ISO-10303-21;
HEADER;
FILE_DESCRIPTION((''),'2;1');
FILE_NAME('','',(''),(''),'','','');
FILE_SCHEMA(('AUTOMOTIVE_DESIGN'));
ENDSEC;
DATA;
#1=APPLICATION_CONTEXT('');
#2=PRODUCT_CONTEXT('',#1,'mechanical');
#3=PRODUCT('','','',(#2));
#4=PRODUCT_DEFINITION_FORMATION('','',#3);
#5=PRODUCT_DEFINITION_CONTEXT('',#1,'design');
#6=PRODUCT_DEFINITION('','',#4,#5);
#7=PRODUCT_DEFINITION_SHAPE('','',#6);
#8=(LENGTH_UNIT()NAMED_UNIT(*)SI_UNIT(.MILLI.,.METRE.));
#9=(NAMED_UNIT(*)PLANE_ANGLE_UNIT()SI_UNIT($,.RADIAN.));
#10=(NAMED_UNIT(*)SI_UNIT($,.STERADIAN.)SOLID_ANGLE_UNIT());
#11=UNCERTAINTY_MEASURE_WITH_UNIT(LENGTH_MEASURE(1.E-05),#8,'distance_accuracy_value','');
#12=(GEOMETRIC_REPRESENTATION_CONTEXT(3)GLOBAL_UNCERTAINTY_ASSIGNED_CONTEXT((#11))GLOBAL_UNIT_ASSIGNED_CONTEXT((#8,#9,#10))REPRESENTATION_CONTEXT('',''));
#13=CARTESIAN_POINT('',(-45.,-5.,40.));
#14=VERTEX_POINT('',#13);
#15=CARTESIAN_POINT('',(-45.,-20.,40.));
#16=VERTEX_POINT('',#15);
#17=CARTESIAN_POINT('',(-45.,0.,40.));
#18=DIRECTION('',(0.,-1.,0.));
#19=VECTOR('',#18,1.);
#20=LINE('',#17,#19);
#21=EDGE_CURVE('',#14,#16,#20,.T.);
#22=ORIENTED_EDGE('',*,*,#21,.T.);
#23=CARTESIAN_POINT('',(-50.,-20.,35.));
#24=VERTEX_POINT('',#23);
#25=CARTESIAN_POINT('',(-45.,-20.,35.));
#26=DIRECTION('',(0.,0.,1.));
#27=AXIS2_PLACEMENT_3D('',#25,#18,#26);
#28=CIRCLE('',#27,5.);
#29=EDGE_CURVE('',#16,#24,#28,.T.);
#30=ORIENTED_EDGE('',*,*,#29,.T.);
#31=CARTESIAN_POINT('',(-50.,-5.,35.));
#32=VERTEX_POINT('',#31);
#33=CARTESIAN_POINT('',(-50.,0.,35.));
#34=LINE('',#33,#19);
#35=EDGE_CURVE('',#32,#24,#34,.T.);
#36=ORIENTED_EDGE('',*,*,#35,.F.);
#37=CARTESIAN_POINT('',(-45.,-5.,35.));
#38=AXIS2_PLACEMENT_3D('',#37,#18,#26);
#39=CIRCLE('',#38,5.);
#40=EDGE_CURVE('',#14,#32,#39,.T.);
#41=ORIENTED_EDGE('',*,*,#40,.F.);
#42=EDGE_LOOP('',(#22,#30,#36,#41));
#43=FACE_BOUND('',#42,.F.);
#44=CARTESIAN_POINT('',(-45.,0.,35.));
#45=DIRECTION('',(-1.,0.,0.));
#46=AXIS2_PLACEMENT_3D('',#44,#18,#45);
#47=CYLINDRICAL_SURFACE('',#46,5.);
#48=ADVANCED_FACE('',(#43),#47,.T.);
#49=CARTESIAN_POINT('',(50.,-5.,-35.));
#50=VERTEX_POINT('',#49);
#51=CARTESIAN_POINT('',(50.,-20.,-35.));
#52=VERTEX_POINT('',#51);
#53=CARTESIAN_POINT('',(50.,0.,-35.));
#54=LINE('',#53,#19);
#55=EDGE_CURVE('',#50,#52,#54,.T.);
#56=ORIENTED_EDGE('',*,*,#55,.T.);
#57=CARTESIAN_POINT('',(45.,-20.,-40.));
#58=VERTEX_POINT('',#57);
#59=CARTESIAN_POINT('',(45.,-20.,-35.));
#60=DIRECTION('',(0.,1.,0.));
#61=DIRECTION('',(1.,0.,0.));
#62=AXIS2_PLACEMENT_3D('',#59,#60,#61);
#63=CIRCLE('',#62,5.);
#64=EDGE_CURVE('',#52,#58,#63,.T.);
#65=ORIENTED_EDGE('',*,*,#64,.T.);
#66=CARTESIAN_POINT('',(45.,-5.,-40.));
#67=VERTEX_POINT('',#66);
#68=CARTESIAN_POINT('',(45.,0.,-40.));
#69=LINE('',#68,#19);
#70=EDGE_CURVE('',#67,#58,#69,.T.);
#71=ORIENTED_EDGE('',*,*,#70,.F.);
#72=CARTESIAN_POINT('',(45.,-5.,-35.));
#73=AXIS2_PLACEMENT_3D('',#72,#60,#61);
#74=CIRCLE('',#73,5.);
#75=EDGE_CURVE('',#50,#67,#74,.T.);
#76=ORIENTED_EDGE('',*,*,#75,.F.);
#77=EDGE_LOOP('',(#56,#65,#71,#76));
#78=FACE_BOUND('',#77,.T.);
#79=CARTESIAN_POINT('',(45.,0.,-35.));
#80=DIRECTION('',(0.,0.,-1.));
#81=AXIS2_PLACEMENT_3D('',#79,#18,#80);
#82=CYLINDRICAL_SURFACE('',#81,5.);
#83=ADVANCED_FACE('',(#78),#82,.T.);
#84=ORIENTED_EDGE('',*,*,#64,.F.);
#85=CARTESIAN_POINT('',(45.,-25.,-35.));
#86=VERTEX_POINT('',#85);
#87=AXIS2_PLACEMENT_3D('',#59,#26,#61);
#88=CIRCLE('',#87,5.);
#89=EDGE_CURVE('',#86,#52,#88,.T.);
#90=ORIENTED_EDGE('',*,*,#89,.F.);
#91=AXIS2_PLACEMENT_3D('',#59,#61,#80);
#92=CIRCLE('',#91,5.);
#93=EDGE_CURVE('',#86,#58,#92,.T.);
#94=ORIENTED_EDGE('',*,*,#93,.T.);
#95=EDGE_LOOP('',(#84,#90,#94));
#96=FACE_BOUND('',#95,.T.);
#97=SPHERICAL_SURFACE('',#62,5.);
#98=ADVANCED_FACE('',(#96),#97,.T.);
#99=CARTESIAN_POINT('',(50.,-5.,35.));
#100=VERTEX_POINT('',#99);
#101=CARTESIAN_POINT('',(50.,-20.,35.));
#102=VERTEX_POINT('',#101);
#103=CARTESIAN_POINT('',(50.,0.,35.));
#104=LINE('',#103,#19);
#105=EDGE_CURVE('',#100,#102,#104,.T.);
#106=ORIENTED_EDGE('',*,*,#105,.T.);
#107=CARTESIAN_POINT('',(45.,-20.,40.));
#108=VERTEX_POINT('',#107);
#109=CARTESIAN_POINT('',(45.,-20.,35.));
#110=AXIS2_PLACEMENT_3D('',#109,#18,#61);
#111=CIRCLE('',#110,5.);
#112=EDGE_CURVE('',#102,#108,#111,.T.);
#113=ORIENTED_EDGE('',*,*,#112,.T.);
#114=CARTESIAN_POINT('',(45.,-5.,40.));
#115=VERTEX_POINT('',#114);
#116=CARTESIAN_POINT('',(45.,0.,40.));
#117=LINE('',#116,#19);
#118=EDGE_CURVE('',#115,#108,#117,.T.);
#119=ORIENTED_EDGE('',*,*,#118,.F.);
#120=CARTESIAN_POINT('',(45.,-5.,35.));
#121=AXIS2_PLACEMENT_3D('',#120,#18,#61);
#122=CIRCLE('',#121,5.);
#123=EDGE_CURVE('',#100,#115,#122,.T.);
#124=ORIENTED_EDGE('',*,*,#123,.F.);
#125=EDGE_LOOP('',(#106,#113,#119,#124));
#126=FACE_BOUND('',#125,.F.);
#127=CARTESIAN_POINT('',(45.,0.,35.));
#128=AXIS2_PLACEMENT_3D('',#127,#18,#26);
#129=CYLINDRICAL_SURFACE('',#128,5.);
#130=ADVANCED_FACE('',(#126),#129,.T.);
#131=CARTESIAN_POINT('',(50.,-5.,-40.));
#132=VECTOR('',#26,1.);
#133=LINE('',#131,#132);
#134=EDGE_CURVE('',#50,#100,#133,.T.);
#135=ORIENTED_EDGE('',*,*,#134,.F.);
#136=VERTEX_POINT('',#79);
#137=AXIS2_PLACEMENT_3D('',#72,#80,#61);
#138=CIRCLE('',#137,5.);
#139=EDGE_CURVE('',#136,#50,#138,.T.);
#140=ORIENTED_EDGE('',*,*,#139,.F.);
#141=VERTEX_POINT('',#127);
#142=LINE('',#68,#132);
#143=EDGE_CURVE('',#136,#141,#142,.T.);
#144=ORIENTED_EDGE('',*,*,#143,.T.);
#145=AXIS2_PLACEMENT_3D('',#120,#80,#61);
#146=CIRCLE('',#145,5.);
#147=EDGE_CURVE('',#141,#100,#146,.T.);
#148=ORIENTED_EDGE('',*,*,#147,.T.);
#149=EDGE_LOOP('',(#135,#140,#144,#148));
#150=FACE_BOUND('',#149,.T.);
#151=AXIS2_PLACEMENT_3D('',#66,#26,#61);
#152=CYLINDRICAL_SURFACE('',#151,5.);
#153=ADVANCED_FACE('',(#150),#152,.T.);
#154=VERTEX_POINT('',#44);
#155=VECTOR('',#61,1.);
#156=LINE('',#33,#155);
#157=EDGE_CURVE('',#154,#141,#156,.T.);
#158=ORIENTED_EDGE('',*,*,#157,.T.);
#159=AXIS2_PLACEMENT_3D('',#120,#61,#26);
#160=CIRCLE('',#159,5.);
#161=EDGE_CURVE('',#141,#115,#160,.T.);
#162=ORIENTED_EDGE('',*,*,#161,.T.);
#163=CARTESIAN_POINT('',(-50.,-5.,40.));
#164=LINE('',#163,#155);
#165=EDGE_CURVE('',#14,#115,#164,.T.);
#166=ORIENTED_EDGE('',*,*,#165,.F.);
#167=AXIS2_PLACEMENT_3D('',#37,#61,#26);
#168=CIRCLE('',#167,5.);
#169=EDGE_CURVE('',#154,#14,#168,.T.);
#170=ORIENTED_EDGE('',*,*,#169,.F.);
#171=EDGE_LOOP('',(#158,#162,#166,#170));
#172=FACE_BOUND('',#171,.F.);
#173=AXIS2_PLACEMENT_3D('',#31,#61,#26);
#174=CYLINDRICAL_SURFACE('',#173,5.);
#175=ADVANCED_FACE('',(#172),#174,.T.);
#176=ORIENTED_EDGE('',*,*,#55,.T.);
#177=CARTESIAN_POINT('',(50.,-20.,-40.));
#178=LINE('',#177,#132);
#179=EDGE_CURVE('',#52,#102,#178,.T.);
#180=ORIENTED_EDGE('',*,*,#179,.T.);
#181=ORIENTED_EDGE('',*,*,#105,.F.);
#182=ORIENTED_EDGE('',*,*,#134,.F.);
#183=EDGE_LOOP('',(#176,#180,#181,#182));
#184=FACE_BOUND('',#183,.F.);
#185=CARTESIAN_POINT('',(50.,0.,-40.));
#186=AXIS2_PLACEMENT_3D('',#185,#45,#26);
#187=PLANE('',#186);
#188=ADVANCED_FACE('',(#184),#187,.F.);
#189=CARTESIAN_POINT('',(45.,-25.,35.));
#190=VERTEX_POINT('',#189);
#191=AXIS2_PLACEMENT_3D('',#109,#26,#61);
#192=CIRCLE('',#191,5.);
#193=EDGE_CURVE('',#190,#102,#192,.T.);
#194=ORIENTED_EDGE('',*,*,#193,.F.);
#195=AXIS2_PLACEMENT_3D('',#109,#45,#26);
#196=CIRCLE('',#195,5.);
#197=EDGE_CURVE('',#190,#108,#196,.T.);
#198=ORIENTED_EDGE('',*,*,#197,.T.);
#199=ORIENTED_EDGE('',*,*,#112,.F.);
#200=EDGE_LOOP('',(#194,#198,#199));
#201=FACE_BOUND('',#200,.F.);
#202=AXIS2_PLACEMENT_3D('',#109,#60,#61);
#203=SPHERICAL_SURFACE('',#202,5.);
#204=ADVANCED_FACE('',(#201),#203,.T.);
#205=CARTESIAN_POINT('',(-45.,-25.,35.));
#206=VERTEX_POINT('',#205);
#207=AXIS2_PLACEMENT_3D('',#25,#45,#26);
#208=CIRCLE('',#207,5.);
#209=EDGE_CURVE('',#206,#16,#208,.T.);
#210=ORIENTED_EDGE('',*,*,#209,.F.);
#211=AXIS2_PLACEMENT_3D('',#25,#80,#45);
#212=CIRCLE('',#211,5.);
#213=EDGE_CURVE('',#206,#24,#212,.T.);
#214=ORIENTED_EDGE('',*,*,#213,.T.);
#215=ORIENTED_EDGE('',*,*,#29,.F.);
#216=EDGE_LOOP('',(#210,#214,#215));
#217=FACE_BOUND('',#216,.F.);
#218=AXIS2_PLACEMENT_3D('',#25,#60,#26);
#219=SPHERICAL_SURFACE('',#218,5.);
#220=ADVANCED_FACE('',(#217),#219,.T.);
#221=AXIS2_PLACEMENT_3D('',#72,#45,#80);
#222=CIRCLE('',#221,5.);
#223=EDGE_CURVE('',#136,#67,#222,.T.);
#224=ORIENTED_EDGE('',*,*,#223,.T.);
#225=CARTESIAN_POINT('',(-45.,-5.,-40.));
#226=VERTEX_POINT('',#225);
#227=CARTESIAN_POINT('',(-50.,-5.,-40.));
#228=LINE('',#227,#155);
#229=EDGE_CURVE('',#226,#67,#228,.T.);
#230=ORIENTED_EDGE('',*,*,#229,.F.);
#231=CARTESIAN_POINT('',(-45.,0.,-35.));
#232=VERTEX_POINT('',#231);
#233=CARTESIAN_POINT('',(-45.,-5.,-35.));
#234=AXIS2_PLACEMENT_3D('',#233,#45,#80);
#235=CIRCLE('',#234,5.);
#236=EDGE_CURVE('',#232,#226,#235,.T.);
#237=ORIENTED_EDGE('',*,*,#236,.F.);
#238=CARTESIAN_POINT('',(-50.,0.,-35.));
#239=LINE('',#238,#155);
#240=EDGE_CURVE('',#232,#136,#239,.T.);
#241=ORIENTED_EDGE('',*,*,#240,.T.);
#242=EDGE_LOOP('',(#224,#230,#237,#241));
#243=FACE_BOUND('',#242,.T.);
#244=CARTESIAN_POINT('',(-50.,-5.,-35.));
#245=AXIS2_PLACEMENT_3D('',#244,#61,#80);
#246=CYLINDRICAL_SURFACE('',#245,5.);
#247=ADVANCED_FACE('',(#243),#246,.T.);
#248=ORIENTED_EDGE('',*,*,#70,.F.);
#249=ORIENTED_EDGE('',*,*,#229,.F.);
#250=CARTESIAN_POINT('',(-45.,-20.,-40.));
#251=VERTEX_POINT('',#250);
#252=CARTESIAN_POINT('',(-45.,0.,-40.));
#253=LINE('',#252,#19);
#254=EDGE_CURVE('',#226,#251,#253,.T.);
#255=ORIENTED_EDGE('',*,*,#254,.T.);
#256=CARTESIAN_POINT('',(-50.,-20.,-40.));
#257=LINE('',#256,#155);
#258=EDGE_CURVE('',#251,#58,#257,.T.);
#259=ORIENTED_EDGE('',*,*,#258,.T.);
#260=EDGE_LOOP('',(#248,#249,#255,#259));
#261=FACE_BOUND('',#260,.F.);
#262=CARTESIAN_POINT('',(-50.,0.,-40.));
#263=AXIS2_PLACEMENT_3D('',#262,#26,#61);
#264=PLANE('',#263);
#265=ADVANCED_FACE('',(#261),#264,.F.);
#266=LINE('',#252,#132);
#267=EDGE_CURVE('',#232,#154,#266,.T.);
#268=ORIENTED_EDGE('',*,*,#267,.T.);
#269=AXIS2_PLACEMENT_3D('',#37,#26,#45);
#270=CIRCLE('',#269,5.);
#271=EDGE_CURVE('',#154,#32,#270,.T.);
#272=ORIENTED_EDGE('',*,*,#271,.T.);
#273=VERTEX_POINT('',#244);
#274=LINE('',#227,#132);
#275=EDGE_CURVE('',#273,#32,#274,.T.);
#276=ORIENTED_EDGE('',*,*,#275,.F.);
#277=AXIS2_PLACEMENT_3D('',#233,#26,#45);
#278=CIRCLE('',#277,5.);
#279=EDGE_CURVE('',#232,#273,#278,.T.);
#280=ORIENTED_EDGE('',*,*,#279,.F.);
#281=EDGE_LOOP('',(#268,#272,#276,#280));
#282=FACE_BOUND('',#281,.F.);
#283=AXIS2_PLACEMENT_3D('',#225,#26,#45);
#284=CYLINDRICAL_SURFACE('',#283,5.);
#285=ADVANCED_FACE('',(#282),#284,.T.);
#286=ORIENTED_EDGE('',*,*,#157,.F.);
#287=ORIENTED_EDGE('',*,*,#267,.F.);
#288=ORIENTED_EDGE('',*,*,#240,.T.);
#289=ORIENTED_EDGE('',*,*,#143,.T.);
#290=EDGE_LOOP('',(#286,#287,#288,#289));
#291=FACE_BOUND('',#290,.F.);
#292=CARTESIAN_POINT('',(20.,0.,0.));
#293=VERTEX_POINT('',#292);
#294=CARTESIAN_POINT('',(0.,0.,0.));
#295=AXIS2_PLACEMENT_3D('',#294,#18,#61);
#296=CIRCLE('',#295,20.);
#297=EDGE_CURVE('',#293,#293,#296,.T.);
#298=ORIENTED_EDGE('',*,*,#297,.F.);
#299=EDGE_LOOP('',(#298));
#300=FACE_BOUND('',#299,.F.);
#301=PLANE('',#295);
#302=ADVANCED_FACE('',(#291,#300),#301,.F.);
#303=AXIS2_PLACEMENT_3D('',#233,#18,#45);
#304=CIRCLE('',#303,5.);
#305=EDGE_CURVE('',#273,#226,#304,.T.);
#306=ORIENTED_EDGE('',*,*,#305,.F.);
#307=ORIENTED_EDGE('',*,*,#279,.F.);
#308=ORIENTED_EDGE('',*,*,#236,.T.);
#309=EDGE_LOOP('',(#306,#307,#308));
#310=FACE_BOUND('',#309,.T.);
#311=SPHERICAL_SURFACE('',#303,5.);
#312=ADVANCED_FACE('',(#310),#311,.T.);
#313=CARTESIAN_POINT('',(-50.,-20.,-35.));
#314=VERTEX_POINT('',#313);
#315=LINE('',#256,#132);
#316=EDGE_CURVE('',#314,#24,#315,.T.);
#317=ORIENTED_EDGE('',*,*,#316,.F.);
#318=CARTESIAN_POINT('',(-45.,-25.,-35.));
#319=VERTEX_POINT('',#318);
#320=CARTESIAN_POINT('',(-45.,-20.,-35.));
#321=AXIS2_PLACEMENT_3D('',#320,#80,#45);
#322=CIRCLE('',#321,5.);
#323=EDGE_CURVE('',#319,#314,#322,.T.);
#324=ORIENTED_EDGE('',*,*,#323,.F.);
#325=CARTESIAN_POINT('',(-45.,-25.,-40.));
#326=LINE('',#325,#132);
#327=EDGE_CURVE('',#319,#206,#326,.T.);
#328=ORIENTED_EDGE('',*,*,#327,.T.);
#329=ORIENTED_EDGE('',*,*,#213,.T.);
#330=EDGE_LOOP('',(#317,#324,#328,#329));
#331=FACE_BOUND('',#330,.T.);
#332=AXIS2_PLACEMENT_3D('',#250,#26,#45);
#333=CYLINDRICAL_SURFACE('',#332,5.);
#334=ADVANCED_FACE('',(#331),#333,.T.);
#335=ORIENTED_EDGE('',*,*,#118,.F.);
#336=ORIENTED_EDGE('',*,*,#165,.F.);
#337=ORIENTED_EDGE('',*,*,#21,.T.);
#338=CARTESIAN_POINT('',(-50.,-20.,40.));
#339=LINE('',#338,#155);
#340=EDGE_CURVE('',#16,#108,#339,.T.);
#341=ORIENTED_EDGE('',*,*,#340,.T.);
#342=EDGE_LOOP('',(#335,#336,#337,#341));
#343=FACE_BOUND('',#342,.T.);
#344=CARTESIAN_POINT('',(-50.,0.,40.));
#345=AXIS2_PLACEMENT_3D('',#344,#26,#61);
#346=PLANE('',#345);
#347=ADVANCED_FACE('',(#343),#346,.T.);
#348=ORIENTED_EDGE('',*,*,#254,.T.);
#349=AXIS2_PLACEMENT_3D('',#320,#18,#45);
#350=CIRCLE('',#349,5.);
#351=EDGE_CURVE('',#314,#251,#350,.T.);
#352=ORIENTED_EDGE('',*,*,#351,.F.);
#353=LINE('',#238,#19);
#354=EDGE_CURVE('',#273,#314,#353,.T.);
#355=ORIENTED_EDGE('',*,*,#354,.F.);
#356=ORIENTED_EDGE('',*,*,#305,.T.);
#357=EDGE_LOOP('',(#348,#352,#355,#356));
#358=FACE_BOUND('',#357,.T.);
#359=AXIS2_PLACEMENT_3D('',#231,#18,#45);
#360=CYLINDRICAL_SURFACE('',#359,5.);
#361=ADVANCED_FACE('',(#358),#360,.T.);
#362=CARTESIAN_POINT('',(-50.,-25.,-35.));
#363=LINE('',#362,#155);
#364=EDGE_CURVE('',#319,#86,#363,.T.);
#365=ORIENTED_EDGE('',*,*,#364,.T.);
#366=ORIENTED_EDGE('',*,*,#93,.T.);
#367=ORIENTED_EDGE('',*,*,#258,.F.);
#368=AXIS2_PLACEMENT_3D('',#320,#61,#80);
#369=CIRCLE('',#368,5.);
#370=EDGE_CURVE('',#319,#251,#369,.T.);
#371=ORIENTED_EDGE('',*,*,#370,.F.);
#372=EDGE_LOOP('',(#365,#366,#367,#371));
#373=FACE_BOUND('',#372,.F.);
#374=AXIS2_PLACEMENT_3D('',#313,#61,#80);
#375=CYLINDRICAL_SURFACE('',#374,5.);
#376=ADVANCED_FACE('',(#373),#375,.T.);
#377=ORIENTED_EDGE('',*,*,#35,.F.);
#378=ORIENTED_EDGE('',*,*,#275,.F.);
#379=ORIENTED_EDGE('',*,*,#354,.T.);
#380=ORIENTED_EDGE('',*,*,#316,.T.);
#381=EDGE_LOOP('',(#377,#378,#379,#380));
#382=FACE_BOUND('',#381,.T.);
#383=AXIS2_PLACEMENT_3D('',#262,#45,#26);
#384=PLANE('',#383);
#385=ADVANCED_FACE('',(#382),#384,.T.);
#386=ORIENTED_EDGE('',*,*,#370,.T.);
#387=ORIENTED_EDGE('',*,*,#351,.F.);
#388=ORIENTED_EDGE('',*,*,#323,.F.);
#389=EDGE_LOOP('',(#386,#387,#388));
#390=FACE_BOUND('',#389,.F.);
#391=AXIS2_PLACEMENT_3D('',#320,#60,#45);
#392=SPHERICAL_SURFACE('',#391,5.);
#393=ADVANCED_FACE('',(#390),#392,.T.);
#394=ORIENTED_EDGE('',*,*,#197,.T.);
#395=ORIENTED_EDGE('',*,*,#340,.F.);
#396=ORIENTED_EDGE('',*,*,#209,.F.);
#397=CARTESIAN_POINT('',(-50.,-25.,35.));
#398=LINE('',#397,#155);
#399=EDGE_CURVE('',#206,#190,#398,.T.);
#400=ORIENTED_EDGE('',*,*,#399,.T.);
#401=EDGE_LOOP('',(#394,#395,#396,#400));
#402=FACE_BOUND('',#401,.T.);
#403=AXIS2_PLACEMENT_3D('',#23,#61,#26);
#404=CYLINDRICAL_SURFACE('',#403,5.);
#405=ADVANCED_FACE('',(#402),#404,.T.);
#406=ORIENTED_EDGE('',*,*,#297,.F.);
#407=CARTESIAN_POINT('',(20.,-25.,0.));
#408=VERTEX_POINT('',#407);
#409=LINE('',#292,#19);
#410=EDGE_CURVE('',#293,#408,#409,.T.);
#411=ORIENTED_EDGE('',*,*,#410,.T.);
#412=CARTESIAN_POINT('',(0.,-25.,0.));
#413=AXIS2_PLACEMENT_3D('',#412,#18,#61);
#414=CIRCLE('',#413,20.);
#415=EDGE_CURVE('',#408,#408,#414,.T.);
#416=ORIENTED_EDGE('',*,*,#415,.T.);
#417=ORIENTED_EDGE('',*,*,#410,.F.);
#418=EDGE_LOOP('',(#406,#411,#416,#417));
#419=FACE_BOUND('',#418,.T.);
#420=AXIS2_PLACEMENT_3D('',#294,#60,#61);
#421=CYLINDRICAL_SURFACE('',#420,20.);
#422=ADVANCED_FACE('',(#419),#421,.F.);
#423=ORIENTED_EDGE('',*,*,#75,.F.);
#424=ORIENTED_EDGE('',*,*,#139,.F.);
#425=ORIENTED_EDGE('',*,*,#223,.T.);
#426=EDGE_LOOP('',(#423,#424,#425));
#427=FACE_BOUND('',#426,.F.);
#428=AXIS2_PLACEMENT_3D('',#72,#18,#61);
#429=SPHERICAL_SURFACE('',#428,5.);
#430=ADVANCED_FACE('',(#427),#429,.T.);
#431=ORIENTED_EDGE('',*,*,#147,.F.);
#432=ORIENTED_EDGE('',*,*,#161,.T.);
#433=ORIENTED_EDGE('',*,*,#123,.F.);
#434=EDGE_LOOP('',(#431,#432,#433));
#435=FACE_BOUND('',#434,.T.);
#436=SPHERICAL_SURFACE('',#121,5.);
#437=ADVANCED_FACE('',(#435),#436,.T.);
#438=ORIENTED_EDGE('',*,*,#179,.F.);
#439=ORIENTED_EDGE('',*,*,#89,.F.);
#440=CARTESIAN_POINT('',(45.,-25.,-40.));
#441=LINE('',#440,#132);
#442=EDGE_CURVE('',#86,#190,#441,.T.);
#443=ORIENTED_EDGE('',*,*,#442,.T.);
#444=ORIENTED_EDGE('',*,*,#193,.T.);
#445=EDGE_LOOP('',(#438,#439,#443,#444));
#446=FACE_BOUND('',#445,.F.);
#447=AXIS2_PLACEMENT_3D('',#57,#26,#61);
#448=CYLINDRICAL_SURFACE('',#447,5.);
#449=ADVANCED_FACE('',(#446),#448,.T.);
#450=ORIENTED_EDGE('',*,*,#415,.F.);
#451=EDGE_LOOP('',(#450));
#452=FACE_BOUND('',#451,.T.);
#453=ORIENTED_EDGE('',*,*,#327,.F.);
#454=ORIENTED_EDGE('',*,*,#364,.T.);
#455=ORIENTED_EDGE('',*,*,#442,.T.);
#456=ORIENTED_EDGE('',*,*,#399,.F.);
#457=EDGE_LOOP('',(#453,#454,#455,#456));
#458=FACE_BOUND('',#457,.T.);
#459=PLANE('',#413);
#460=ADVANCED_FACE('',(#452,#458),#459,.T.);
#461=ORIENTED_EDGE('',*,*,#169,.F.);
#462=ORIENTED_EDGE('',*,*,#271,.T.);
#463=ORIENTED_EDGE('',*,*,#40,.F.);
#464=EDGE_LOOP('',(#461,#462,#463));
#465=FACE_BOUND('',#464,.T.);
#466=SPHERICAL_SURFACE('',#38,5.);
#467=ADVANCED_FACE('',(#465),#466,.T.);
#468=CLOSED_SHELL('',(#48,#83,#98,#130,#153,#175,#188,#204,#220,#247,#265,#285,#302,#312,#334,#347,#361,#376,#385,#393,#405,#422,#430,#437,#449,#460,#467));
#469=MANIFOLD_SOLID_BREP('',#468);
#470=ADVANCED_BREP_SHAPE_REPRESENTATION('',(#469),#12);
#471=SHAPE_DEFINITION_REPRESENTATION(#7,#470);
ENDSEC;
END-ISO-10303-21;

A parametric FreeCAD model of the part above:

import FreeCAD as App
import Part
import Sketcher

V = App.Vector


def edges_at(feature, points):
    """Names of the edges that pass closest to the given points."""
    edges = feature.Shape.Edges
    near = lambda p: min(range(len(edges)), key=lambda i: edges[i].distToShape(Part.Vertex(*p))[0])
    return sorted({f"Edge{near(p) + 1}" for p in points})


def add_polygon(sketch, points):
    """Adds a closed chain of lines whose ends are joined by coincident constraints."""
    first, n = sketch.GeometryCount, len(points)
    for a, b in zip(points, points[1:] + points[:1]):
        sketch.addGeometry(Part.LineSegment(App.Vector(*a, 0), App.Vector(*b, 0)), False)
    for i in range(n):
        sketch.addConstraint(Sketcher.Constraint("Coincident", first + i, 2, first + (i + 1) % n, 1))

doc = App.newDocument("Part")
params = doc.addObject("Spreadsheet::Sheet", "Params")
for row, (alias, value) in enumerate([
    ("sketch1_diameter", "40 mm"),
    ("sketch1_width", "100 mm"),
    ("sketch1_height", "80 mm"),
    ("pad1_length", "25 mm"),
    ("fillet_radius", "5 mm"),
], start=1):
    params.set(f"A{row}", alias)
    params.set(f"B{row}", "=" + value)
    params.setAlias(f"B{row}", alias)

body = doc.addObject("PartDesign::Body", "Body")

# Sketch on XZ plane
sketch1 = doc.addObject("Sketcher::SketchObject", "Sketch")
body.addObject(sketch1)
sketch1.AttachmentSupport = (doc.XZ_Plane, [""])
sketch1.MapMode = "FlatFace"
add_polygon(sketch1, [(-50, 40), (-50, -40), (50, -40), (50, 40)])  # lines 0-3
sketch1.addGeometry(Part.Circle(V(0, 0, 0), V(0, 0, 1), 20), False)  # 4
sketch1.addConstraint([
    Sketcher.Constraint("Vertical", 0),
    Sketcher.Constraint("Horizontal", 1),
    Sketcher.Constraint("Vertical", 2),
    Sketcher.Constraint("Horizontal", 3),
    Sketcher.Constraint("Coincident", 4, 3, -1, 1),
    Sketcher.Constraint("Symmetric", 0, 2, 2, 2, -1, 1),
    Sketcher.Constraint("Diameter", 4, 40.0),
    Sketcher.Constraint("DistanceX", 1, 1, 1, 2, 100.0),
    Sketcher.Constraint("DistanceY", 0, 2, 0, 1, 80.0),
])
sketch1.setExpression("Constraints[10]", "Params.sketch1_diameter")
sketch1.setExpression("Constraints[11]", "Params.sketch1_width")
sketch1.setExpression("Constraints[12]", "Params.sketch1_height")
pad1 = doc.addObject("PartDesign::Pad", "Pad")
body.addObject(pad1)
pad1.Profile = sketch1
pad1.setExpression("Length", "Params.pad1_length")
doc.recompute()

fillet = doc.addObject("PartDesign::Fillet", "Fillet")
body.addObject(fillet)
fillet.Base = (pad1, edges_at(pad1, [
    (50, -12.5, -40),
    (50, -12.5, 40),
    (50, 0, 0),
    (50, -25, 0),
    (-50, -12.5, 40),
    (0, 0, 40),
    (0, -25, 40),
    (-50, -12.5, -40),
    (-50, 0, 0),
    (-50, -25, 0),
    (0, 0, -40),
    (0, -25, -40),
]))
fillet.setExpression("Radius", "Params.fillet_radius")

doc.recompute()
